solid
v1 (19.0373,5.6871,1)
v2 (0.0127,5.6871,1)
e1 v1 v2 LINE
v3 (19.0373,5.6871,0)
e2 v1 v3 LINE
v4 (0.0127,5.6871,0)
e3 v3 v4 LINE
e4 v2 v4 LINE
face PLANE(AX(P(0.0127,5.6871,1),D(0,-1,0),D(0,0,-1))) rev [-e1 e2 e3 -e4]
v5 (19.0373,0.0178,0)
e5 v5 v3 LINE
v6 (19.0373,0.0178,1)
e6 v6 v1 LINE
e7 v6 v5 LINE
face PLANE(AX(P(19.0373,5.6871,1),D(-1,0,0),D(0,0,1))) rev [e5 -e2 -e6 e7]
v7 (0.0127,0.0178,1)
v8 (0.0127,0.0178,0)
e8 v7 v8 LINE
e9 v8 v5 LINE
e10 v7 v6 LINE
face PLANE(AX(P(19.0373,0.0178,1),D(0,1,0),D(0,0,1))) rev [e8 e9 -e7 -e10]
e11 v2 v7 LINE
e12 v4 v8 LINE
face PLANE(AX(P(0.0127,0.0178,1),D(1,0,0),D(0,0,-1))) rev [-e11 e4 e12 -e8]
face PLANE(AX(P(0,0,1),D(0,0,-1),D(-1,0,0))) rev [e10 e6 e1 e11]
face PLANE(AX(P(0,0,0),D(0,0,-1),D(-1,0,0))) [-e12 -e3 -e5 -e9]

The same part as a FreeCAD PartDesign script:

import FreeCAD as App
import Part
import Sketcher

V = App.Vector
Q = App.Units.Quantity


def add_polygon(sketch, points):
    """Adds a closed chain of lines whose ends are joined by coincident constraints."""
    first, n = sketch.GeometryCount, len(points)
    for a, b in zip(points, points[1:] + points[:1]):
        sketch.addGeometry(Part.LineSegment(App.Vector(*a, 0), App.Vector(*b, 0)), False)
    for i in range(n):
        sketch.addConstraint(Sketcher.Constraint("Coincident", first + i, 2, first + (i + 1) % n, 1))

doc = App.newDocument("Part")
body = doc.addObject("PartDesign::Body", "Body")

sketch1 = doc.addObject("Sketcher::SketchObject", "Sketch")
body.addObject(sketch1)
sketch1.AttachmentSupport = (doc.XY_Plane, [""])
sketch1.MapMode = "FlatFace"
add_polygon(sketch1, [(0.0127, 5.6871), (0.0127, 0.0178), (19.0373, 0.0178), (19.0373, 5.6871)])
sketch1.addConstraint([
    Sketcher.Constraint("Vertical", 0),
    Sketcher.Constraint("Horizontal", 1),
    Sketcher.Constraint("Vertical", 2),
    Sketcher.Constraint("Horizontal", 3),
    Sketcher.Constraint("DistanceX", 1, 1, 1, 2, Q("19.0246 mm")),
    Sketcher.Constraint("DistanceY", 0, 2, 0, 1, Q("5.6693 mm")),
    Sketcher.Constraint("DistanceX", -1, 1, 0, 2, Q("0.0127 mm")),
    Sketcher.Constraint("DistanceY", -1, 1, 0, 2, Q("0.0178 mm")),
])
pad1 = doc.addObject("PartDesign::Pad", "Pad")
body.addObject(pad1)
pad1.Profile = sketch1
pad1.Length = 1

doc.recompute()
